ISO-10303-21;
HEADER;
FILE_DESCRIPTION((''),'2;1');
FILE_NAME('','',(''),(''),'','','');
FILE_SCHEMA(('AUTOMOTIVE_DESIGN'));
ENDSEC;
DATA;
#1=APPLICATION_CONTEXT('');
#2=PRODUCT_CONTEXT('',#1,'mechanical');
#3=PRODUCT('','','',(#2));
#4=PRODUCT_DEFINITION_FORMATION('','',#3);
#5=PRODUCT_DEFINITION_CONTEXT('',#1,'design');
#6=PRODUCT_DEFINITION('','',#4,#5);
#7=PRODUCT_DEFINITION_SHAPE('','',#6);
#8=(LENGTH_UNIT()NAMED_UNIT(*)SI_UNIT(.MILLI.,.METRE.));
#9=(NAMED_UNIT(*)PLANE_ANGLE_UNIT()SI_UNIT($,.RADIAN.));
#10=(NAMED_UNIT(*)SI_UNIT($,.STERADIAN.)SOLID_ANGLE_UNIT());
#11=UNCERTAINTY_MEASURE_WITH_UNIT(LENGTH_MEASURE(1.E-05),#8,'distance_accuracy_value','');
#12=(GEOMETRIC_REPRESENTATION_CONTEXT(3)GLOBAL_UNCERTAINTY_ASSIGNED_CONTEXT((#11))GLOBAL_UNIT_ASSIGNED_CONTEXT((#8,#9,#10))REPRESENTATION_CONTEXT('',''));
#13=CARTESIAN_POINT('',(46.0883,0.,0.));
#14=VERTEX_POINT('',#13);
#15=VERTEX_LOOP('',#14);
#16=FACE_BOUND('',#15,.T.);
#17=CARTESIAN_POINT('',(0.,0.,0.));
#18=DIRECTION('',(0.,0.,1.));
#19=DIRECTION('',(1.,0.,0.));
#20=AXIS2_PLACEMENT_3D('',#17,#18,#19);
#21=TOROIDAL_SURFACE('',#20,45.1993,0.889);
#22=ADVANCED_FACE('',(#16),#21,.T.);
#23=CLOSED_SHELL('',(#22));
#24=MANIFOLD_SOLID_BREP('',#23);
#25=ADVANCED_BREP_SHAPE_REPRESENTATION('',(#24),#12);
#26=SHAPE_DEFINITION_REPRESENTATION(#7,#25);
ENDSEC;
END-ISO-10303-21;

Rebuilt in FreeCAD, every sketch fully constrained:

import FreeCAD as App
import Part
import Sketcher

V = App.Vector
Q = App.Units.Quantity

doc = App.newDocument("Part")
body = doc.addObject("PartDesign::Body", "Body")

sketch1 = body.newObject("Sketcher::SketchObject", "Sketch")
sketch1.AttachmentSupport = (doc.getObject("YZ_Plane"), [""])
sketch1.MapMode = "FlatFace"
sketch1.addGeometry(Part.Circle(V(-45.1993, 0, 0), V(0, 0, 1), 0.889), False)
sketch1.addConstraint([
    Sketcher.Constraint("PointOnObject", 0, 3, -1),
    Sketcher.Constraint("Diameter", 0, Q("0.07 in")),
    Sketcher.Constraint("DistanceX", 0, 3, -1, 1, Q("1.7795 in")),
])
revolution = body.newObject("PartDesign::Revolution", "Revolution")
revolution.Profile = sketch1
revolution.ReferenceAxis = (sketch1, ["V_Axis"])
revolution.Angle = 360

doc.recompute()
